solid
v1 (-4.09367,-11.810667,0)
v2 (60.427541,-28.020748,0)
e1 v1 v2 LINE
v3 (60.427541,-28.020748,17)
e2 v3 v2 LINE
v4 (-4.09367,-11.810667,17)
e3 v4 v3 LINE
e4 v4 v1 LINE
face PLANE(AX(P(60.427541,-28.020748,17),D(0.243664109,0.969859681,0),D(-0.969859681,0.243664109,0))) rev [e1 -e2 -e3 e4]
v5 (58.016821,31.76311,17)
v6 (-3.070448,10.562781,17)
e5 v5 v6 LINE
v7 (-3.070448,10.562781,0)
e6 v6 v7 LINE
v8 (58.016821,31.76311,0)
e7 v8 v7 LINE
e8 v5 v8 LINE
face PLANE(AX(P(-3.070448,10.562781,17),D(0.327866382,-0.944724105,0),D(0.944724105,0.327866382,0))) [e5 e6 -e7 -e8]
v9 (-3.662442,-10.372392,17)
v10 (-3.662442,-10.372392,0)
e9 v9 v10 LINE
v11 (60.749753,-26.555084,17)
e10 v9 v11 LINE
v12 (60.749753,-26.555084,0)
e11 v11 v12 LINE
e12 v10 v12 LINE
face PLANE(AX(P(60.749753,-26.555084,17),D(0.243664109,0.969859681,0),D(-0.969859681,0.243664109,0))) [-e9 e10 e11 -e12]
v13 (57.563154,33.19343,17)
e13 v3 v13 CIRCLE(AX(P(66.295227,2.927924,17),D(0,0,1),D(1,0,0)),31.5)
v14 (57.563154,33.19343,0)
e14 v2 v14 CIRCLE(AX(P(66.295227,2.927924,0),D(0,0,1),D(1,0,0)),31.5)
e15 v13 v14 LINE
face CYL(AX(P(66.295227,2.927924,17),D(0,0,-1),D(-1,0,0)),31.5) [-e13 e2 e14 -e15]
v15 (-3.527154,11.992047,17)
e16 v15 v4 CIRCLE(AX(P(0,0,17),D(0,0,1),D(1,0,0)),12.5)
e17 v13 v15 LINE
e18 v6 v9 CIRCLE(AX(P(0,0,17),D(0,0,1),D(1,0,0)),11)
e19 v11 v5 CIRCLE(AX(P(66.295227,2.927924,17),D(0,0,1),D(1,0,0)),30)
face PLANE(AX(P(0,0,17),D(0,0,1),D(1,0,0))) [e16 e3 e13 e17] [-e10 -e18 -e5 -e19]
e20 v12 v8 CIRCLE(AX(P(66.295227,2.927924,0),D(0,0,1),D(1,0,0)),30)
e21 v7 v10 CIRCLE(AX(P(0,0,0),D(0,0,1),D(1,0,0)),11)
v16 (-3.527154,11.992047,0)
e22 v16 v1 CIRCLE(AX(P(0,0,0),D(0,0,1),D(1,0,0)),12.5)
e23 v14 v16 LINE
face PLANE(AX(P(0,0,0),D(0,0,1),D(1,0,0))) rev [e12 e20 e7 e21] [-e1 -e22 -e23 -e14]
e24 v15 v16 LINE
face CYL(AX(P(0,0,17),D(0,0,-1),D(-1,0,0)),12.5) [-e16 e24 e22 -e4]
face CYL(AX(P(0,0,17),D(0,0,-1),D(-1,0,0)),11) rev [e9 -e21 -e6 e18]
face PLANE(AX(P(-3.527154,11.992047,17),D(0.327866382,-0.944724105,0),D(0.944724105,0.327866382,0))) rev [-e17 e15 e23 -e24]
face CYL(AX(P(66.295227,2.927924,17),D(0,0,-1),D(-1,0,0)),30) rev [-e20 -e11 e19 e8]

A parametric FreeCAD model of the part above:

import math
import FreeCAD as App
import Part
import Sketcher
from FreeCAD import Vector

doc = App.newDocument("Part")
params = doc.addObject("Spreadsheet::Sheet", "Params")
for row, (alias, value) in enumerate([
    ("sketch1_radius", "30 mm"),
    ("sketch1_radius2", "11 mm"),
    ("sketch1_radius3", "12.5 mm"),
    ("sketch1_radius4", "31.5 mm"),
    ("pad1_length", "17 mm"),
], start=1):
    params.set(f"A{row}", alias)
    params.set(f"B{row}", "=" + value)
    params.setAlias(f"B{row}", alias)

body = doc.addObject("PartDesign::Body", "Body")

sketch1 = body.newObject("Sketcher::SketchObject", "Sketch")
sketch1.AttachmentSupport = (doc.getObject("XY_Plane"), [""])
sketch1.MapMode = "FlatFace"
sketch1.addGeometry([
    Part.LineSegment(Vector(58, 33, 0), Vector(-4, 12, 0)),
    Part.ArcOfCircle(Part.Circle(Vector(0, 0, 0), Vector(0, 0, 1), 12), math.radians(106), math.radians(251)),
    Part.LineSegment(Vector(-4, -12, 0), Vector(60, -28, 0)),
    Part.ArcOfCircle(Part.Circle(Vector(66, 3, 0), Vector(0, 0, 1), 32), math.radians(-101), math.radians(106)),
    Part.LineSegment(Vector(-3, 11, 0), Vector(58, 32, 0)),
    Part.ArcOfCircle(Part.Circle(Vector(66, 3, 0), Vector(0, 0, 1), 30), math.radians(-101), math.radians(106)),
    Part.LineSegment(Vector(61, -27, 0), Vector(-4, -10, 0)),
    Part.ArcOfCircle(Part.Circle(Vector(0, 0, 0), Vector(0, 0, 1), 11), math.radians(106), math.radians(251)),
], False)
sketch1.addConstraint([
    Sketcher.Constraint("Coincident", 0, 2, 1, 1),
    Sketcher.Constraint("Coincident", 1, 2, 2, 1),
    Sketcher.Constraint("Coincident", 2, 2, 3, 1),
    Sketcher.Constraint("Coincident", 3, 2, 0, 1),
    Sketcher.Constraint("Coincident", 4, 2, 5, 2),
    Sketcher.Constraint("Coincident", 5, 1, 6, 1),
    Sketcher.Constraint("Coincident", 6, 2, 7, 2),
    Sketcher.Constraint("Coincident", 7, 1, 4, 1),
    Sketcher.Constraint("Coincident", 1, 3, -1, 1),
    Sketcher.Constraint("Coincident", 7, 3, -1, 1),
    Sketcher.Constraint("Coincident", 5, 3, 3, 3),
    Sketcher.Constraint("Parallel", 0, 4),
    Sketcher.Constraint("Parallel", 2, 6),
    Sketcher.Constraint("Radius", 5, 30.0),
    Sketcher.Constraint("Radius", 7, 11.0),
    Sketcher.Constraint("Radius", 1, 12.5),
    Sketcher.Constraint("Radius", 3, 31.5),
    Sketcher.Constraint("DistanceX", 3, 2, 5, 1, 3.186599),
    Sketcher.Constraint("Distance", 4, 64.661491),
    Sketcher.Constraint("Distance", 6, 66.413931),
    Sketcher.Constraint("DistanceX", 1, 2, -1, 1, 4.09367),
    Sketcher.Constraint("DistanceX", -1, 1, 2, 2, 60.427541),
    Sketcher.Constraint("DistanceY", -1, 1, 3, 2, 33.19343),
    Sketcher.Constraint("DistanceX", -1, 1, 4, 2, 58.016821),
    Sketcher.Constraint("DistanceY", -1, 1, 4, 2, 31.76311),
])
sketch1.setExpression("Constraints[13]", "Params.sketch1_radius")
sketch1.setExpression("Constraints[14]", "Params.sketch1_radius2")
sketch1.setExpression("Constraints[15]", "Params.sketch1_radius3")
sketch1.setExpression("Constraints[16]", "Params.sketch1_radius4")
pad1 = body.newObject("PartDesign::Pad", "Pad")
pad1.Profile = sketch1
pad1.setExpression("Length", "Params.pad1_length")

doc.recompute()
